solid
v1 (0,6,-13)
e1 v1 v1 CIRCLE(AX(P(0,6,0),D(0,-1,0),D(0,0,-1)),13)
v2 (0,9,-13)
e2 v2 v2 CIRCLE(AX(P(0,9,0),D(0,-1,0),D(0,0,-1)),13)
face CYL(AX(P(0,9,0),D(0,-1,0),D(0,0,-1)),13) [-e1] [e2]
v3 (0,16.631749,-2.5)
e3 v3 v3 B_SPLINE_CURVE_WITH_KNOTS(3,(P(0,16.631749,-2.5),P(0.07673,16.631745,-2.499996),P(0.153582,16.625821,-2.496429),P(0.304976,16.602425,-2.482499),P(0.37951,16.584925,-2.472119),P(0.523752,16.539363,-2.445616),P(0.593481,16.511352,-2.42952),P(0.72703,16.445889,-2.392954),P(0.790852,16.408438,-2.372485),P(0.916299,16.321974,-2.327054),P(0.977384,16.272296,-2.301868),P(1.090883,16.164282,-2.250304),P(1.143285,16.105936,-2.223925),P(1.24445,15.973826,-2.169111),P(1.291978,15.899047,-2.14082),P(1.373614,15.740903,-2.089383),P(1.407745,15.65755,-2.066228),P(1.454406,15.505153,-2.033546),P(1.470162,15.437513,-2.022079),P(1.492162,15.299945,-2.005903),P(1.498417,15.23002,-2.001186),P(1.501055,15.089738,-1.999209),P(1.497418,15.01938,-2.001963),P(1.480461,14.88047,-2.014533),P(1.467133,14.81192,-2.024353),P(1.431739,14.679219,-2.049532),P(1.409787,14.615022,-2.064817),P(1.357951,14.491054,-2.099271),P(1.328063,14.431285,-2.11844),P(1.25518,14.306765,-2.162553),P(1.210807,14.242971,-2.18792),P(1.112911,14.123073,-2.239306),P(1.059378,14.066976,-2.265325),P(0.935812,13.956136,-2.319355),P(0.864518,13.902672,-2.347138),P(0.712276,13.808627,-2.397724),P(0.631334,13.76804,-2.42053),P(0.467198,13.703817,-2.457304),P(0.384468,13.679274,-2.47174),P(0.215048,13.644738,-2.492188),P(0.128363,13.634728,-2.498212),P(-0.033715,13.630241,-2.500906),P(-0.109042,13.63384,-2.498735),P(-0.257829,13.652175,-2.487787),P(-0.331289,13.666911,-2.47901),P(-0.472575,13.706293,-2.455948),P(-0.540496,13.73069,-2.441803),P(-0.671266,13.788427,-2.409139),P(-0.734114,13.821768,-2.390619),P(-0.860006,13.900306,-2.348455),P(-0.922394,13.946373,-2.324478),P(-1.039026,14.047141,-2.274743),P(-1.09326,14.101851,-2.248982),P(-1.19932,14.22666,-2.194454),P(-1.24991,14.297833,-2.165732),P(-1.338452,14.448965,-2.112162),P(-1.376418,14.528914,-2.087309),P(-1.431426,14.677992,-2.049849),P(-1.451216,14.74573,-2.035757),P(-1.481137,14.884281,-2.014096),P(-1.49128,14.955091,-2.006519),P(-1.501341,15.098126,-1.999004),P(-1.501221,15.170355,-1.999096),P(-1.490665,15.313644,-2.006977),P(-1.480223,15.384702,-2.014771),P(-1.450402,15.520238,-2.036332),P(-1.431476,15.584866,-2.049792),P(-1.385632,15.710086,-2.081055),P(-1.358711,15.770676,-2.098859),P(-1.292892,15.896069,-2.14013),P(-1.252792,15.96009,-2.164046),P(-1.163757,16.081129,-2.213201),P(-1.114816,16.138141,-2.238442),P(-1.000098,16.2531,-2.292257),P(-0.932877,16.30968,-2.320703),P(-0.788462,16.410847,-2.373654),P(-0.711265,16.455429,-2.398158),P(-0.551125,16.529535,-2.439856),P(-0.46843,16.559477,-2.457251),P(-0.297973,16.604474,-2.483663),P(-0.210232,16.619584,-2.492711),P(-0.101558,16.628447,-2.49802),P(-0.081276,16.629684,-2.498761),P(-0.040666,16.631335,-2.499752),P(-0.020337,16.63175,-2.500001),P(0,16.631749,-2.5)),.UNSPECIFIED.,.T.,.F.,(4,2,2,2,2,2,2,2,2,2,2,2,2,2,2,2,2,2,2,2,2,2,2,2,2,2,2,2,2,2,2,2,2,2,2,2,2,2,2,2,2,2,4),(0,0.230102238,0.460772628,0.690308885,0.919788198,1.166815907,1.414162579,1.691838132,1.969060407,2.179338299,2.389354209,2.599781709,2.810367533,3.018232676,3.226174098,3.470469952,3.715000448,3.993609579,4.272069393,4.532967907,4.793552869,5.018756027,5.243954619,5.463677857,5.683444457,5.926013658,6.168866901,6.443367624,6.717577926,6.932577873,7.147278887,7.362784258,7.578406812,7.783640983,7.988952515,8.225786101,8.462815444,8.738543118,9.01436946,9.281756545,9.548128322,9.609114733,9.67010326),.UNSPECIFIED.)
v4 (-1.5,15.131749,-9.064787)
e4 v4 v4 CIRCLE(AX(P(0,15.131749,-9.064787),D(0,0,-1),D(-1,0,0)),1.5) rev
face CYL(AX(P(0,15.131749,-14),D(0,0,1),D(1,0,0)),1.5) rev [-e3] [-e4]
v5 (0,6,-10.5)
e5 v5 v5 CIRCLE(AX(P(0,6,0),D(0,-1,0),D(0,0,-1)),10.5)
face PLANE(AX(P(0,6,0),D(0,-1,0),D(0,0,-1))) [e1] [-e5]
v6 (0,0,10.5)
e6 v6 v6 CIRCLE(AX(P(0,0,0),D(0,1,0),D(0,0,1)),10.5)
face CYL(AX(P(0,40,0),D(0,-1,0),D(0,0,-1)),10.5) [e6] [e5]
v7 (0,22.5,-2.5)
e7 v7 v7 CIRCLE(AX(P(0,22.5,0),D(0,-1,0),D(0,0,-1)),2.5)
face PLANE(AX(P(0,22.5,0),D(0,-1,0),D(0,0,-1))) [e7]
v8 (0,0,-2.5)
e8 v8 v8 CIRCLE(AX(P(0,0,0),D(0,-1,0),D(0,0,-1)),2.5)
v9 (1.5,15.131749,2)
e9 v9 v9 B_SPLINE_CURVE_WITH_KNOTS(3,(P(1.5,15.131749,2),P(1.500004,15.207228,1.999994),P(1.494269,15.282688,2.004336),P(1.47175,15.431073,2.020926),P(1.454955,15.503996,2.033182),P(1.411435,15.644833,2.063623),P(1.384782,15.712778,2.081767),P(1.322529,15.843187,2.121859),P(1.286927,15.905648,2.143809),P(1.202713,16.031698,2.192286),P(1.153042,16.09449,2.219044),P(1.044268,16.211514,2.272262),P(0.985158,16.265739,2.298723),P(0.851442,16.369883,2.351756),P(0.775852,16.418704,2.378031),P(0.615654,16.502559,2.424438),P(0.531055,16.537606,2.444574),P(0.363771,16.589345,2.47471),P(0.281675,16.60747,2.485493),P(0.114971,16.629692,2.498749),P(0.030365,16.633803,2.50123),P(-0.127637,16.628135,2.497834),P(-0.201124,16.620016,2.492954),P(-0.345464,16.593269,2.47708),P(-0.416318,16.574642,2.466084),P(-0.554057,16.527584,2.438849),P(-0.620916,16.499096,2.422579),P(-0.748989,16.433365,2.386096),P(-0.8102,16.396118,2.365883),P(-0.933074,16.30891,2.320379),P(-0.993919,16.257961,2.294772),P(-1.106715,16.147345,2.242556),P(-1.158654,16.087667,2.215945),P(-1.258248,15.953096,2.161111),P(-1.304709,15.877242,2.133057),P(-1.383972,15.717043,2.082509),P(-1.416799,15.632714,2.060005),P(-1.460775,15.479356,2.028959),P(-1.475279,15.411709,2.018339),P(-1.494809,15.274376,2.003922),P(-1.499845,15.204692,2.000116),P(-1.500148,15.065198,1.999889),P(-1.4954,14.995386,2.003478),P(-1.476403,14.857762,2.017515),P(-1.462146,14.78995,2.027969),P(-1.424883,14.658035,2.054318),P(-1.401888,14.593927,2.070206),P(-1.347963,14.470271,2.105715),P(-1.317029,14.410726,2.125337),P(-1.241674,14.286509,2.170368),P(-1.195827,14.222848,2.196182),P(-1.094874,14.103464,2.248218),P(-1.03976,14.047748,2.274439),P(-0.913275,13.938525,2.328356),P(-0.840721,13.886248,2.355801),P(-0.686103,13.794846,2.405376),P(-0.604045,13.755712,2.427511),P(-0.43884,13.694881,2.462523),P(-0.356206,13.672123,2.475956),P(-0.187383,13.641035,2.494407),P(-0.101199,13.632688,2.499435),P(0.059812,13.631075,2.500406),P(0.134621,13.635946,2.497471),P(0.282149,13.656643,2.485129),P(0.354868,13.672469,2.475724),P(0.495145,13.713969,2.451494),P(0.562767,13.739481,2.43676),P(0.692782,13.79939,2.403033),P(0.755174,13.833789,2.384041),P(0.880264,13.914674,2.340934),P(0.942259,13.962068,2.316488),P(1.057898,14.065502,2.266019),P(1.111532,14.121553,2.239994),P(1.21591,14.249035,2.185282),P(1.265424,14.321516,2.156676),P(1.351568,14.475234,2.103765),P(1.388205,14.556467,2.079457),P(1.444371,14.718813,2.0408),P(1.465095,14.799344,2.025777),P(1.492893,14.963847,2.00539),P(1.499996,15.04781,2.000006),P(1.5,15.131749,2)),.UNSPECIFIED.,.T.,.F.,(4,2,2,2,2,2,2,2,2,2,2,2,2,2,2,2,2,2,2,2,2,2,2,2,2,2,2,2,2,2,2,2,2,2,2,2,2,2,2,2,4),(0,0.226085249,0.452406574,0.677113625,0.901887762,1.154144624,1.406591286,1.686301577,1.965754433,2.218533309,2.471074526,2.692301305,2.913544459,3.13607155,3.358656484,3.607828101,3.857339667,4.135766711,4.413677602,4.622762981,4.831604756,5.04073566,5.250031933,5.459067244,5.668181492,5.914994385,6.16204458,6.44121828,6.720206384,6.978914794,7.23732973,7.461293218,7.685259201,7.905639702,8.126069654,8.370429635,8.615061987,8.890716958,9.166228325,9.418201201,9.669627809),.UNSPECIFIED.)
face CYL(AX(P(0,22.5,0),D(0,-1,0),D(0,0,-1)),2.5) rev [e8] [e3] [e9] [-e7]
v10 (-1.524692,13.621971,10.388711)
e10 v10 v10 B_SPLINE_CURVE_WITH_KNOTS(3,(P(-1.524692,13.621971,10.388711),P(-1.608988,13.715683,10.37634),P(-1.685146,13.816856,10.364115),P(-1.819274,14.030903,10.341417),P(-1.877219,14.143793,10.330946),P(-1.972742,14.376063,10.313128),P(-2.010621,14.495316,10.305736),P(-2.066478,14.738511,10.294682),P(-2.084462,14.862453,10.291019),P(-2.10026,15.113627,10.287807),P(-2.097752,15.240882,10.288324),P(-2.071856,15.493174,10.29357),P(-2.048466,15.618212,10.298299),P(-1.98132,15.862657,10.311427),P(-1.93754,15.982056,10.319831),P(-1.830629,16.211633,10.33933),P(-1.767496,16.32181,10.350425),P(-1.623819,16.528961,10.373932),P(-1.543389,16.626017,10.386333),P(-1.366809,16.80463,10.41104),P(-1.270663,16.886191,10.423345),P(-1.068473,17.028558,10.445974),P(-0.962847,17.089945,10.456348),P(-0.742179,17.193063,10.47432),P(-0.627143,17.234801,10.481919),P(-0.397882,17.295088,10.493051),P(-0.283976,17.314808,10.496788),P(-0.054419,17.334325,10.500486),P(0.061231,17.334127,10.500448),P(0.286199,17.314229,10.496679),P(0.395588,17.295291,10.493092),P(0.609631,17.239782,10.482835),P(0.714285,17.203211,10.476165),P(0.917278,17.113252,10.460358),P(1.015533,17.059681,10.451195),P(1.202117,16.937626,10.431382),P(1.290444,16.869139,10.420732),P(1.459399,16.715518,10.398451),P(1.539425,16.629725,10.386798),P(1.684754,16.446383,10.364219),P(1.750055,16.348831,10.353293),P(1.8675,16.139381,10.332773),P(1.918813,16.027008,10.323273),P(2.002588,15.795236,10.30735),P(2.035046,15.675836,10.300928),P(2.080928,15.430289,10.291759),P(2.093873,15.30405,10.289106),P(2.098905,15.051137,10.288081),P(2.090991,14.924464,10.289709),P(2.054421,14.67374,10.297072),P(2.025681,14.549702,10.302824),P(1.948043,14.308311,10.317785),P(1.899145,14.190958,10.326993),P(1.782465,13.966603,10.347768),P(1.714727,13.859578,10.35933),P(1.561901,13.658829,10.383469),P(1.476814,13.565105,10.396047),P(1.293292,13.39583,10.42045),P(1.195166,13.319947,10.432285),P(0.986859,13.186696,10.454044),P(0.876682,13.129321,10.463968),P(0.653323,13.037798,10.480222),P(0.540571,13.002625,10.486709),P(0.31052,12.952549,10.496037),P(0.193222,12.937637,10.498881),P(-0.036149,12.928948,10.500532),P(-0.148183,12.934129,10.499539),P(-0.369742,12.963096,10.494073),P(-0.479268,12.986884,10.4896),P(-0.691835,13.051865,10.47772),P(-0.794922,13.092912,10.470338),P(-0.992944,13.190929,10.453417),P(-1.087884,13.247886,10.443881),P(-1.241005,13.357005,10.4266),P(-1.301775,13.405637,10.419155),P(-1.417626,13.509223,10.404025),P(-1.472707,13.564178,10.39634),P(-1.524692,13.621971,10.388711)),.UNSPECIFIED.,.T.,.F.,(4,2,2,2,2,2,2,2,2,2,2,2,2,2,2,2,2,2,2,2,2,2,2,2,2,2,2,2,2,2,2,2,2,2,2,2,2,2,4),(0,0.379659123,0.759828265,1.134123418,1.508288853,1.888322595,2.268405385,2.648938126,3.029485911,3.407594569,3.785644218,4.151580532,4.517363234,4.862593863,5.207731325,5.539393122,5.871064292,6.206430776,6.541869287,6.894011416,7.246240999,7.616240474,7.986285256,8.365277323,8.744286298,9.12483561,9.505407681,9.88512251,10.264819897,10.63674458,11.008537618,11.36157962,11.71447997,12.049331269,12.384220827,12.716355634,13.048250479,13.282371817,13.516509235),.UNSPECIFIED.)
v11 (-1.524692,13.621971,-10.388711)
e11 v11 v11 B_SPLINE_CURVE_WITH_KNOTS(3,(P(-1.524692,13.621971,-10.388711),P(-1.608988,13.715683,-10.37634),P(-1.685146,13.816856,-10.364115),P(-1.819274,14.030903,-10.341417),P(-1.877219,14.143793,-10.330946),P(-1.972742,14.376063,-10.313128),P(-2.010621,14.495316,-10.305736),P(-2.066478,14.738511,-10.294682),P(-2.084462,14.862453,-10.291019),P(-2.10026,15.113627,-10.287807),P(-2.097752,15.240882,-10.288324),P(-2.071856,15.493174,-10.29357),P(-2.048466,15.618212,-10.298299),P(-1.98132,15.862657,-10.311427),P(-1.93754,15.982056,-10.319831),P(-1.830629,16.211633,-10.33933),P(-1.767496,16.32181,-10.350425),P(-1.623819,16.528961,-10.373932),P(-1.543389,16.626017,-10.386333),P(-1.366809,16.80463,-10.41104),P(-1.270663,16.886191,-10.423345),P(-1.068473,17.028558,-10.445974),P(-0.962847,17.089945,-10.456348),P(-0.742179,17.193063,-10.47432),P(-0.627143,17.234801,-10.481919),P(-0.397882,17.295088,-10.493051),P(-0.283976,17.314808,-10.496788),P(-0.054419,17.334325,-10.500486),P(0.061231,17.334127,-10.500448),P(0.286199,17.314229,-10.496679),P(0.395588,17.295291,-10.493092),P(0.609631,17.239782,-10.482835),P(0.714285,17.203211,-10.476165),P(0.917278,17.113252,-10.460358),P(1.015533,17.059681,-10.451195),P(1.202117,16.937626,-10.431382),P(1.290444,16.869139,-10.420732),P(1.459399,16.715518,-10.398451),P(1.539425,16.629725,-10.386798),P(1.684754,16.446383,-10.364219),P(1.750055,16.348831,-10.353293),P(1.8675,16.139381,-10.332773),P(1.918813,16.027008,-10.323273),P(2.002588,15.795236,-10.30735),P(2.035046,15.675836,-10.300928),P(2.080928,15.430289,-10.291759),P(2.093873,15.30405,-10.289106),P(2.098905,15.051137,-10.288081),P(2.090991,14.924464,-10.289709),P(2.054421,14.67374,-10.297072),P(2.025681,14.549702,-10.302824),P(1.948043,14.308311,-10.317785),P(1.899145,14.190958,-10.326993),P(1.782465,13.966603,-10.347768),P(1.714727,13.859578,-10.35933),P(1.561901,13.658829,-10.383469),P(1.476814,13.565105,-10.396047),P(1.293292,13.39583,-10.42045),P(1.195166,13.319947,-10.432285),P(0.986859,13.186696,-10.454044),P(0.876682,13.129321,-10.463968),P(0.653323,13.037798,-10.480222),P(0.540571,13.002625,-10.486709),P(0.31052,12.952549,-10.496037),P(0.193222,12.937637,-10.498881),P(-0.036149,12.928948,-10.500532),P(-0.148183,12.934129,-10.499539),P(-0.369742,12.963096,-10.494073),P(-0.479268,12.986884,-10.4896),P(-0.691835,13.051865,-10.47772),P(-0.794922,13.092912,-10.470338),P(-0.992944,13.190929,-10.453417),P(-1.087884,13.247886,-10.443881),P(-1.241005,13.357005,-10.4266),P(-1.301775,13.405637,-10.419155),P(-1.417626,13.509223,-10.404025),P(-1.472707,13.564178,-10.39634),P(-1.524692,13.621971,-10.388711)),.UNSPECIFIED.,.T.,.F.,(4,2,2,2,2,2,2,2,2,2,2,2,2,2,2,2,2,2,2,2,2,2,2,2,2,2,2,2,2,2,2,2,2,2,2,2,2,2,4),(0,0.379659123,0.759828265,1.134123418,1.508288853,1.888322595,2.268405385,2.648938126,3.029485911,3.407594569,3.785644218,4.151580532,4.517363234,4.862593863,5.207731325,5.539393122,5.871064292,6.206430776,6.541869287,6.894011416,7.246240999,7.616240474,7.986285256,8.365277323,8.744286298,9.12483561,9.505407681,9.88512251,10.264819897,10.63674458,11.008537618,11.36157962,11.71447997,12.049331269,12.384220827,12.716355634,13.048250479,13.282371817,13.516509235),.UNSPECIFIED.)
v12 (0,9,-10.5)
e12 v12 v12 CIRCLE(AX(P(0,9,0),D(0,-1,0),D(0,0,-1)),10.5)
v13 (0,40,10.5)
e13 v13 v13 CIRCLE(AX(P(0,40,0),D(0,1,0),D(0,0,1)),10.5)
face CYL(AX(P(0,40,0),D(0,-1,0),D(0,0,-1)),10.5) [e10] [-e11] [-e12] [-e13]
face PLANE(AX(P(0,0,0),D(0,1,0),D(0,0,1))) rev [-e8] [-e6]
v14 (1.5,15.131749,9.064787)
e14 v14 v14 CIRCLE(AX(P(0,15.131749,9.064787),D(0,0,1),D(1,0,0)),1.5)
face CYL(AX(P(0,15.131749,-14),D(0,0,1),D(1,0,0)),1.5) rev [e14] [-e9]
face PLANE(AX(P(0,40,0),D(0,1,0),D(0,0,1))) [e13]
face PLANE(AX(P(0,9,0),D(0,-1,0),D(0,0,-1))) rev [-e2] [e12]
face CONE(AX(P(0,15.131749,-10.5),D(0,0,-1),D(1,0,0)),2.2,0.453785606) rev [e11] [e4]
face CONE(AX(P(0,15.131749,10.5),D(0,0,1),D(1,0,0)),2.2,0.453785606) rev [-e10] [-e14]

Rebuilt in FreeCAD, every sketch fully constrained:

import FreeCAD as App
import Part
import Sketcher
Q = App.Units.Quantity


def faces_at(feature, points):
    """Names of the faces that lie closest to the given points."""
    faces = feature.Shape.Faces
    near = lambda p: min(range(len(faces)), key=lambda i: faces[i].distToShape(Part.Vertex(*p))[0])
    return sorted({f"Face{near(p) + 1}" for p in points})

doc = App.newDocument("Part")
body = doc.addObject("PartDesign::Body", "Body")

sketch1 = body.newObject("Sketcher::SketchObject", "Sketch")
sketch1.AttachmentSupport = (doc.getObject("XZ_Plane"), [""])
sketch1.MapMode = "FlatFace"
sketch1.addGeometry(Part.Circle(App.Vector(0, 0, 0), App.Vector(0, 0, 1), 10), False)
sketch1.addConstraint([
    Sketcher.Constraint("Coincident", 0, 3, -1, 1),
    Sketcher.Constraint("Diameter", 0, Q("21 mm")),
])
pad1 = body.newObject("PartDesign::Pad", "Pad")
pad1.Profile = sketch1
pad1.Length = 40
pad1.Reversed = True

sketch2 = body.newObject("Sketcher::SketchObject", "Sketch001")
sketch2.AttachmentSupport = (doc.getObject("XZ_Plane"), [""])
sketch2.MapMode = "FlatFace"
sketch2.addGeometry(Part.Circle(App.Vector(0, 0, 0), App.Vector(0, 0, 1), 2.5), False)
sketch2.addConstraint([
    Sketcher.Constraint("Coincident", 0, 3, -1, 1),
    Sketcher.Constraint("Diameter", 0, Q("5 mm")),
])
pocket1 = body.newObject("PartDesign::Pocket", "Pocket")
pocket1.Profile = sketch2
pocket1.Length = 22.5

sketch3 = body.newObject("Sketcher::SketchObject", "Sketch002")
sketch3.AttachmentSupport = (doc.getObject("XZ_Plane"), [""])
sketch3.MapMode = "FlatFace"
sketch3.AttachmentOffset = App.Placement(App.Vector(0, 0, -6), App.Rotation())
sketch3.addGeometry([
    Part.Circle(App.Vector(0, 0, 0), App.Vector(0, 0, 1), 13),
    Part.Circle(App.Vector(0, 0, 0), App.Vector(0, 0, 1), 10),
], False)
sketch3.addConstraint([
    Sketcher.Constraint("Coincident", 0, 3, -1, 1),
    Sketcher.Constraint("Coincident", 1, 3, -1, 1),
    Sketcher.Constraint("Diameter", 0, Q("26 mm")),
    Sketcher.Constraint("Diameter", 1, Q("21 mm")),
])
pad2 = body.newObject("PartDesign::Pad", "Pad001")
pad2.Profile = sketch3
pad2.Length = 3
pad2.Reversed = True

sketch4 = body.newObject("Sketcher::SketchObject", "Sketch003")
sketch4.AttachmentSupport = (doc.getObject("XY_Plane"), [""])
sketch4.MapMode = "FlatFace"
sketch4.addGeometry(Part.Circle(App.Vector(0, 15.1, 0), App.Vector(0, 0, 1), 1.5), False)
sketch4.addConstraint([
    Sketcher.Constraint("PointOnObject", 0, 3, -2),
    Sketcher.Constraint("Diameter", 0, Q("3 mm")),
    Sketcher.Constraint("DistanceY", -1, 1, 0, 3, Q("15.131749 mm")),
])
pocket2 = body.newObject("PartDesign::Pocket", "Pocket001")
pocket2.Profile = sketch4
pocket2.Length = 28
pocket2.Midplane = True
body2 = doc.addObject("PartDesign::Body", "Body001")

sketch5 = body2.newObject("Sketcher::SketchObject", "Sketch004")
sketch5.AttachmentSupport = (doc.getObject("XY_Plane001"), [""])
sketch5.MapMode = "FlatFace"
sketch5.AttachmentOffset = App.Placement(App.Vector(0, 0, 10.5), App.Rotation())
sketch5.addGeometry(Part.Circle(App.Vector(0, 15.1, 0), App.Vector(0, 0, 1), 2.2), False)
sketch5.addConstraint([
    Sketcher.Constraint("PointOnObject", 0, 3, -2),
    Sketcher.Constraint("Diameter", 0, Q("4.4 mm")),
    Sketcher.Constraint("DistanceY", -1, 1, 0, 3, Q("15.131749 mm")),
])
pad3 = body2.newObject("PartDesign::Pad", "Pad002")
pad3.Profile = sketch5
pad3.Length = 1.5
pad3.Reversed = True
doc.recompute()

datumplane = body2.newObject("PartDesign::Plane", "DatumPlane")
datumplane.AttachmentSupport = (doc.getObject("XY_Plane001"), [""])
datumplane.MapMode = "FlatFace"
datumplane.AttachmentOffset = App.Placement(App.Vector(0, 0, 10.5), App.Rotation())
draft = body2.newObject("PartDesign::Draft", "Draft")
draft.Base = (pad3, faces_at(pad3, [(2.2, 15.132, 9.75)]))
draft.NeutralPlane = (datumplane, [""])
draft.Angle = 26
draft.Reversed = True
doc.recompute()

boolean = body.newObject("PartDesign::Boolean", "Boolean")
boolean.Type = "Cut"
boolean.addObjects([body2])

sketch6 = body.newObject("Sketcher::SketchObject", "Sketch005")
sketch6.AttachmentSupport = (doc.getObject("XY_Plane"), [""])
sketch6.MapMode = "FlatFace"
sketch6.AttachmentOffset = App.Placement(App.Vector(0, 0, -10.5), App.Rotation())
sketch6.addGeometry(Part.Circle(App.Vector(0, 15.1, 0), App.Vector(0, 0, 1), 2.2), False)
sketch6.addConstraint([
    Sketcher.Constraint("PointOnObject", 0, 3, -2),
    Sketcher.Constraint("Diameter", 0, Q("4.4 mm")),
    Sketcher.Constraint("DistanceY", -1, 1, 0, 3, Q("15.131749 mm")),
])
pocket3 = body.newObject("PartDesign::Pocket", "Pocket002")
pocket3.Profile = sketch6
pocket3.Length = 1.5
pocket3.Reversed = True
pocket3.TaperAngle = -26

doc.recompute()
